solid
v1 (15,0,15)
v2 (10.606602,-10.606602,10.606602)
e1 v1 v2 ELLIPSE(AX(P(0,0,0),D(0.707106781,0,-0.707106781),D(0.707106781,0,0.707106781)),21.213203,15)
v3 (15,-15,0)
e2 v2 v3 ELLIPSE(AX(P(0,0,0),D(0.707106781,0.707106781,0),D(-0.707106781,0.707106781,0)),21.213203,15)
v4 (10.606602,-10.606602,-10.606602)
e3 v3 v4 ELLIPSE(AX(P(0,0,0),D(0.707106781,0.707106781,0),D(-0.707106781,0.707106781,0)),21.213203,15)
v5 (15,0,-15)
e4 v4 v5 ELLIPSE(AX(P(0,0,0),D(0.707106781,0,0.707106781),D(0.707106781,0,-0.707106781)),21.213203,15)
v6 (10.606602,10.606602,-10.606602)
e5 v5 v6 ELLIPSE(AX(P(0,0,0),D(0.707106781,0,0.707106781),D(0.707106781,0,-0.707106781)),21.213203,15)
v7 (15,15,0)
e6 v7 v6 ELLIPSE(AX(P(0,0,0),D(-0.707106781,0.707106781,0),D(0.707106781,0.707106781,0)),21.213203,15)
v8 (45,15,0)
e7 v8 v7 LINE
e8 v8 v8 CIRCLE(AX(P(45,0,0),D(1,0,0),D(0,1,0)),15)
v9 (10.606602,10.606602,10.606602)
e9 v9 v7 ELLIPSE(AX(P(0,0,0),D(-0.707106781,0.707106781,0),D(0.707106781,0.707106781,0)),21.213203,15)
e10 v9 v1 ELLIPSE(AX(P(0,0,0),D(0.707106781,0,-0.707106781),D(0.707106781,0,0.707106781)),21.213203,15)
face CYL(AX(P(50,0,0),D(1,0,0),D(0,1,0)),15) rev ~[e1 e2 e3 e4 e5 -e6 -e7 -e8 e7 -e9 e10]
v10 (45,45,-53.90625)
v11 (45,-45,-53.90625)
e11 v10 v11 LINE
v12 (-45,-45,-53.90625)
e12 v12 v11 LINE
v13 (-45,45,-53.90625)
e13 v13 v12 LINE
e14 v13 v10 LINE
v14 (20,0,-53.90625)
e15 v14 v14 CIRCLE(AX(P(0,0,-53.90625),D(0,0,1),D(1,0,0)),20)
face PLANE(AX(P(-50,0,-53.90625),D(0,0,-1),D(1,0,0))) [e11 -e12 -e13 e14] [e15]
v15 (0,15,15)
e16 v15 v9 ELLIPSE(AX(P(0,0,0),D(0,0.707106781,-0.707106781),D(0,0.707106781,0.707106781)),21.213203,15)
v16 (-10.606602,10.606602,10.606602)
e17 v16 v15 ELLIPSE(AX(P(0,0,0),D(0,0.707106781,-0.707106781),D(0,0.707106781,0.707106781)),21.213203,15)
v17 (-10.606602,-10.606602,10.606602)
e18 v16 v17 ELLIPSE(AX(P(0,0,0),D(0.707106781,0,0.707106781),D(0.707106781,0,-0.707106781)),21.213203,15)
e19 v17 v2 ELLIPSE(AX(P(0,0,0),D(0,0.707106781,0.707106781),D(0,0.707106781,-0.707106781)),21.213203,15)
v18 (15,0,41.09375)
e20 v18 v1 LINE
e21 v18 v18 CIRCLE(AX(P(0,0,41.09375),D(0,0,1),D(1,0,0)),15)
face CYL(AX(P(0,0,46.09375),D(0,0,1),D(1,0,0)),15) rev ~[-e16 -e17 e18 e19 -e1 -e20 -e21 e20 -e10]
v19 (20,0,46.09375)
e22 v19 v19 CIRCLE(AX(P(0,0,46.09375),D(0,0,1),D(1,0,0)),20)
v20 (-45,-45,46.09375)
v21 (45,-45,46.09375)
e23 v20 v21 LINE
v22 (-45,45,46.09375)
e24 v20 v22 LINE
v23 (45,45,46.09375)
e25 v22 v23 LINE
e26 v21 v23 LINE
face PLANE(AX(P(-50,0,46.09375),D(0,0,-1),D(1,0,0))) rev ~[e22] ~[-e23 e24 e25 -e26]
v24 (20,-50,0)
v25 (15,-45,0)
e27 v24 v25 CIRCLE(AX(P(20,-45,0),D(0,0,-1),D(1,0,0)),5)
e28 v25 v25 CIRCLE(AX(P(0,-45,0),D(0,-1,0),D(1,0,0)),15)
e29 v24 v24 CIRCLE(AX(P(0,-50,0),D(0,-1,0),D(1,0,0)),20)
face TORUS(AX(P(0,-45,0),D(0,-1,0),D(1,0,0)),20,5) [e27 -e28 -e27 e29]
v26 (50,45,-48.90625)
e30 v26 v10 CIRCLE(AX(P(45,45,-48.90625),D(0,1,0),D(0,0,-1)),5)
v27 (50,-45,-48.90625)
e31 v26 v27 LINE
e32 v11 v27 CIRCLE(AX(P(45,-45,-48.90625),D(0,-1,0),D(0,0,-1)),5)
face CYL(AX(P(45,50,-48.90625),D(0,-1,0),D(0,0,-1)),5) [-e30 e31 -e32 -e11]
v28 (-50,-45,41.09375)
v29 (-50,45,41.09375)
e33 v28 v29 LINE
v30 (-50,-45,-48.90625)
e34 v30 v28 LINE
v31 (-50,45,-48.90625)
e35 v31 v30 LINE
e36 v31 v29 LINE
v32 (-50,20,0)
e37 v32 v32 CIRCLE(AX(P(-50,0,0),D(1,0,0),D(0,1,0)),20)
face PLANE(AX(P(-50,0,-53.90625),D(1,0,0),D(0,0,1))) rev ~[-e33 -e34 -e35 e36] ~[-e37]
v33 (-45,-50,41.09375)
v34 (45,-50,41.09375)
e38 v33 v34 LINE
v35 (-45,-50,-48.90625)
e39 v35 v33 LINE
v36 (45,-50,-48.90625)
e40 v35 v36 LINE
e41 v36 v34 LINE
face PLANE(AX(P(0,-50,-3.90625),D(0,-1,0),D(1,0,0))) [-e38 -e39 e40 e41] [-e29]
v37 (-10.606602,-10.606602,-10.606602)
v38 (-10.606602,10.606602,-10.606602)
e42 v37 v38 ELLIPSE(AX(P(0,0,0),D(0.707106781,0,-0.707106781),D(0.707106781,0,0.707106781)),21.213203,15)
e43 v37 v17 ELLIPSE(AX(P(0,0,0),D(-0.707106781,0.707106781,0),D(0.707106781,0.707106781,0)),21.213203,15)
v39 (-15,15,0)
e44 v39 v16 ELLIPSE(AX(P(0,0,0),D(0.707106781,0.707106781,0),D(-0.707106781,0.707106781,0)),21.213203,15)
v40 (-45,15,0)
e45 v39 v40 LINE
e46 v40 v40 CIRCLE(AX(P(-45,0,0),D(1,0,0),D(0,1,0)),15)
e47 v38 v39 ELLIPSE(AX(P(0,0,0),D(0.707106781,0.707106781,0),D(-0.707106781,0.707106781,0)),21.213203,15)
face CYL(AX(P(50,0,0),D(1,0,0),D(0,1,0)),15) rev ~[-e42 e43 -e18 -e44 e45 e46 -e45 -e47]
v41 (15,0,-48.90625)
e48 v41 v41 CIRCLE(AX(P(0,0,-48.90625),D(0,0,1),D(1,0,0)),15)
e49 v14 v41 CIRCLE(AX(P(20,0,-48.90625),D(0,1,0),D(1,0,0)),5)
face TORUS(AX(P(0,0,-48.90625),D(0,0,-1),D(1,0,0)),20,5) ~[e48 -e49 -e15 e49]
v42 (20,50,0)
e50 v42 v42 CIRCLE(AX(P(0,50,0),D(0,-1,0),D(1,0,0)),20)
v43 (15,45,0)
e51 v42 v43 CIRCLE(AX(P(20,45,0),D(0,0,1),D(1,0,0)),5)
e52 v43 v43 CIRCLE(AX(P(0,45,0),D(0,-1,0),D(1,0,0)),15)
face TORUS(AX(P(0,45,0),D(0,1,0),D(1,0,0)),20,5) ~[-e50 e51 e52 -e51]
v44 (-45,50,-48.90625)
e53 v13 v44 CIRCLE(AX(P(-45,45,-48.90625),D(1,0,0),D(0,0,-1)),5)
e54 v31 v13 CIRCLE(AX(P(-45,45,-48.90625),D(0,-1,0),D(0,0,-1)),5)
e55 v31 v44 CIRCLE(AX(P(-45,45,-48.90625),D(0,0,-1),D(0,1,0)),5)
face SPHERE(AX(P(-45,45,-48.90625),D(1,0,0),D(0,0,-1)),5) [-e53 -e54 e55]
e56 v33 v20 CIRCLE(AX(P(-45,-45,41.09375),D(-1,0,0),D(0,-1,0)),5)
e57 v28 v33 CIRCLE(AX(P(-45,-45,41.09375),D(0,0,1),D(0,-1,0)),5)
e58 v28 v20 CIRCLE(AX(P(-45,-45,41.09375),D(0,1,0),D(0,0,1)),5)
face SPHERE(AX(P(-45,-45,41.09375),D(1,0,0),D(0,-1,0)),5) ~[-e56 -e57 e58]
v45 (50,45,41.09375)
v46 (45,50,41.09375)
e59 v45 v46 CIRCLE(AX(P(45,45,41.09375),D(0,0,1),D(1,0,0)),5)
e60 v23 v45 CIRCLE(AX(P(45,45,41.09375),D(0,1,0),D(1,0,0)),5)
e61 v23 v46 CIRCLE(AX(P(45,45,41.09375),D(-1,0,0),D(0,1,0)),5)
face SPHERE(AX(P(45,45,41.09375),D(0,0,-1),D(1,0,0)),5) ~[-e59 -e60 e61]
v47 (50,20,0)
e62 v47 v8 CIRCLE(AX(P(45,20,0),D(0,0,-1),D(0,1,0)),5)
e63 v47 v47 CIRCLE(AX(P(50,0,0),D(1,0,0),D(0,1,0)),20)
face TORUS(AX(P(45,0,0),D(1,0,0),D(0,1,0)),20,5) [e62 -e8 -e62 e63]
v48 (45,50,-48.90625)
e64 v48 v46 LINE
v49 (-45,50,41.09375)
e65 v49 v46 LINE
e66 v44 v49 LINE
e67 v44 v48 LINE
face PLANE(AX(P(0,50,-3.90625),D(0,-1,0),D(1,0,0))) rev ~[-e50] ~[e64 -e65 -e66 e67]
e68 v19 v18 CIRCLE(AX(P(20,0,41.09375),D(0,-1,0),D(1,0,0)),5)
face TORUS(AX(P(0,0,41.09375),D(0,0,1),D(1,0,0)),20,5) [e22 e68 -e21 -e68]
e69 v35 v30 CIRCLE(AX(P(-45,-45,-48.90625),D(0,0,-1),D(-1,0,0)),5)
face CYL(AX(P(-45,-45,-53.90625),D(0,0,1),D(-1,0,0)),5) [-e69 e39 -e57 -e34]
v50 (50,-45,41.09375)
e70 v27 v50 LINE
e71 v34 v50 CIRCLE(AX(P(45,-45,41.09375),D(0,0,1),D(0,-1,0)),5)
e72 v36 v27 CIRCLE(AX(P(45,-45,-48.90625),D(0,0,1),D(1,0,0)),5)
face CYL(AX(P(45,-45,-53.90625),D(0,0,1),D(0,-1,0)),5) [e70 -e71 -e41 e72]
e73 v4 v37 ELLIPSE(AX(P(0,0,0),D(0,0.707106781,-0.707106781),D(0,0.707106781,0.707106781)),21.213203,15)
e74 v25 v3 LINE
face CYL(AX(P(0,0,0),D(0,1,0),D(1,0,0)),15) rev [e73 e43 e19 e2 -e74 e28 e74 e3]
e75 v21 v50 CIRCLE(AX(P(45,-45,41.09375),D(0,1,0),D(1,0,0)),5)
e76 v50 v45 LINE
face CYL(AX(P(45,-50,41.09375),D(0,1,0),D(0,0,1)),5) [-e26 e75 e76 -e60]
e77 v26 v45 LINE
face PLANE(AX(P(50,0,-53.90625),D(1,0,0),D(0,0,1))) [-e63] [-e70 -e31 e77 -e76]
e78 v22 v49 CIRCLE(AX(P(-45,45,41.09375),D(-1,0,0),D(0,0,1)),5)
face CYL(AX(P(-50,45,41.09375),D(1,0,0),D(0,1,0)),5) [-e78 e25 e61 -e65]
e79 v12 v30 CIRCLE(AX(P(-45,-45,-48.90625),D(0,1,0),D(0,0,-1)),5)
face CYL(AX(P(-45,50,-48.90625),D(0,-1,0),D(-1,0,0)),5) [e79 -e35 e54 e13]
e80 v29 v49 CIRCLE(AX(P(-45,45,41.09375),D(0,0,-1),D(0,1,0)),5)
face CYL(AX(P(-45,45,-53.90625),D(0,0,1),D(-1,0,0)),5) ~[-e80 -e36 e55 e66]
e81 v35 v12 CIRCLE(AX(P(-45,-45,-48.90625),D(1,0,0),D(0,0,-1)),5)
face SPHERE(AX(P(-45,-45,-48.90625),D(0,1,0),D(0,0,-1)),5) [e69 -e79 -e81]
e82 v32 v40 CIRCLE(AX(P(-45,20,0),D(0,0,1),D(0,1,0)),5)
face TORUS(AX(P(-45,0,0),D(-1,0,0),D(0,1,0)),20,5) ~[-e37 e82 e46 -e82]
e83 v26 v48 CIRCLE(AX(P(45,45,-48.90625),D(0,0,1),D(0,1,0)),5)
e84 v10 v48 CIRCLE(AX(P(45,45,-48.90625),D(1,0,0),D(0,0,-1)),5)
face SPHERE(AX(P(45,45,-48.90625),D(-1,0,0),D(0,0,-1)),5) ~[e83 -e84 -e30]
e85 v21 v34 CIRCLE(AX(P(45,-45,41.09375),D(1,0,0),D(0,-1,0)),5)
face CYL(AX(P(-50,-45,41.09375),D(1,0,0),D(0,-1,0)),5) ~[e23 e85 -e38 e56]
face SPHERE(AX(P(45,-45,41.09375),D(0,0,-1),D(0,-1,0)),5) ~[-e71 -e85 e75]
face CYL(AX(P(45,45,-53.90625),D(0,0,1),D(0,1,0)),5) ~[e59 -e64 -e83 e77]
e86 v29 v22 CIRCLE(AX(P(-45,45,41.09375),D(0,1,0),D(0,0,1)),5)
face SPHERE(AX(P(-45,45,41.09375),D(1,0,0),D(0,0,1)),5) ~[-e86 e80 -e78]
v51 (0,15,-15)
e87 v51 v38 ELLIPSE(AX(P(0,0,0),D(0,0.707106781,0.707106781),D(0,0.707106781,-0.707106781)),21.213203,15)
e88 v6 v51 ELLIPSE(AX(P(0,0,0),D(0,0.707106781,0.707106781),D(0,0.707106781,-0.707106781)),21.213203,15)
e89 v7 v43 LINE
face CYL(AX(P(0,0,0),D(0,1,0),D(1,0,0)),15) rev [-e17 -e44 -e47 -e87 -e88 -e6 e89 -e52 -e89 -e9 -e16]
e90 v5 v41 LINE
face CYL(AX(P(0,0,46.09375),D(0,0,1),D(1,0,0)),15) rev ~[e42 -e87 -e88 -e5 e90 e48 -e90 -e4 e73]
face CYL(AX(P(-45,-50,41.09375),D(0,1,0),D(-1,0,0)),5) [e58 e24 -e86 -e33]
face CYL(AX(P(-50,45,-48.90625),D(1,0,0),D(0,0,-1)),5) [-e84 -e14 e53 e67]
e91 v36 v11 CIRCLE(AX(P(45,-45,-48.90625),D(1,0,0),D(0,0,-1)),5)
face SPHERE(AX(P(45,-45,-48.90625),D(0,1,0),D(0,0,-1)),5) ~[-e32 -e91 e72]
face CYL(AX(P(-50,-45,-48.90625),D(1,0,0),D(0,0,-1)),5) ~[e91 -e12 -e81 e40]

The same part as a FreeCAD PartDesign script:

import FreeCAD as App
import Part
import Sketcher

V = App.Vector


def edges_at(feature, points):
    """Names of the edges that pass closest to the given points."""
    edges = feature.Shape.Edges
    near = lambda p: min(range(len(edges)), key=lambda i: edges[i].distToShape(Part.Vertex(*p))[0])
    return sorted({f"Edge{near(p) + 1}" for p in points})

doc = App.newDocument("Part")
params = doc.addObject("Spreadsheet::Sheet", "Params")
for row, (alias, value) in enumerate([
    ("sketch1_diameter", "30 mm"),
    ("sketch1_width", "100 mm"),
    ("pad1_length", "100 mm"),
    ("sketch2_diameter", "30 mm"),
    ("pocket1_length", "100 mm"),
    ("sketch3_diameter", "30 mm"),
    ("pocket2_length", "100 mm"),
    ("fillet_radius", "5 mm"),
], start=1):
    params.set(f"A{row}", alias)
    params.set(f"B{row}", "=" + value)
    params.setAlias(f"B{row}", alias)

body = doc.addObject("PartDesign::Body", "Body")

sketch1 = body.newObject("Sketcher::SketchObject", "Sketch")
sketch1.AttachmentSupport = (doc.getObject("XZ_Plane"), [""])
sketch1.MapMode = "FlatFace"
sketch1.addGeometry([
    Part.LineSegment(V(-50, 46.09375, 0), V(-50, -53.90625, 0)),
    Part.LineSegment(V(-50, -53.90625, 0), V(50, -53.90625, 0)),
    Part.LineSegment(V(50, -53.90625, 0), V(50, 46.09375, 0)),
    Part.LineSegment(V(50, 46.09375, 0), V(-50, 46.09375, 0)),
    Part.Circle(V(0, 0, 0), V(0, 0, 1), 15),
], False)
sketch1.addConstraint([
    Sketcher.Constraint("Coincident", 0, 2, 1, 1),
    Sketcher.Constraint("Coincident", 1, 2, 2, 1),
    Sketcher.Constraint("Coincident", 2, 2, 3, 1),
    Sketcher.Constraint("Coincident", 3, 2, 0, 1),
    Sketcher.Constraint("Vertical", 0),
    Sketcher.Constraint("Horizontal", 1),
    Sketcher.Constraint("Vertical", 2),
    Sketcher.Constraint("Horizontal", 3),
    Sketcher.Constraint("Coincident", 4, 3, -1, 1),
    Sketcher.Constraint("Equal", 3, 0),
    Sketcher.Constraint("Diameter", 4, 30.0),
    Sketcher.Constraint("DistanceX", 1, 1, 1, 2, 100.0),
    Sketcher.Constraint("DistanceX", 0, 2, -1, 1, 50.0),
    Sketcher.Constraint("DistanceY", 0, 2, -1, 1, 53.90625),
])
sketch1.setExpression("Constraints[10]", "Params.sketch1_diameter")
sketch1.setExpression("Constraints[11]", "Params.sketch1_width")
pad1 = body.newObject("PartDesign::Pad", "Pad")
pad1.Profile = sketch1
pad1.setExpression("Length", "Params.pad1_length")
pad1.Midplane = True

sketch2 = body.newObject("Sketcher::SketchObject", "Sketch001")
sketch2.AttachmentSupport = (doc.getObject("YZ_Plane"), [""])
sketch2.MapMode = "FlatFace"
sketch2.AttachmentOffset = App.Placement(V(0, 0, 50), App.Rotation())
sketch2.addGeometry(Part.Circle(V(0, 0, 0), V(0, 0, 1), 15), False)
sketch2.addConstraint([
    Sketcher.Constraint("Coincident", 0, 3, -1, 1),
    Sketcher.Constraint("Diameter", 0, 30.0),
])
sketch2.setExpression("Constraints[1]", "Params.sketch2_diameter")
pocket1 = body.newObject("PartDesign::Pocket", "Pocket")
pocket1.Profile = sketch2
pocket1.setExpression("Length", "Params.pocket1_length")

sketch3 = body.newObject("Sketcher::SketchObject", "Sketch002")
sketch3.AttachmentSupport = (doc.getObject("XY_Plane"), [""])
sketch3.MapMode = "FlatFace"
sketch3.AttachmentOffset = App.Placement(V(0, 0, 46.09375), App.Rotation())
sketch3.addGeometry(Part.Circle(V(0, 0, 0), V(0, 0, 1), 15), False)
sketch3.addConstraint([
    Sketcher.Constraint("Coincident", 0, 3, -1, 1),
    Sketcher.Constraint("Diameter", 0, 30.0),
])
sketch3.setExpression("Constraints[1]", "Params.sketch3_diameter")
pocket2 = body.newObject("PartDesign::Pocket", "Pocket001")
pocket2.Profile = sketch3
pocket2.setExpression("Length", "Params.pocket2_length")
doc.recompute()

fillet = body.newObject("PartDesign::Fillet", "Fillet")
fillet.Base = (pocket2, edges_at(pocket2, [
    (0, 50, -53.906),
    (-50, 0, -53.906),
    (50, 0, -53.906),
    (0, -50, -53.906),
    (-15, 0, -53.906),
    (50, -50, -3.906),
    (0, -50, 46.094),
    (-50, -50, -3.906),
    (-15, -50, 0),
    (50, 50, -3.906),
    (50, 0, 46.094),
    (50, -15, 0),
    (0, 50, 46.094),
    (-50, 0, 46.094),
    (-15, 0, 46.094),
    (-50, 50, -3.906),
    (-15, 50, 0),
    (-50, -15, 0),
]))
fillet.setExpression("Radius", "Params.fillet_radius")

doc.recompute()
